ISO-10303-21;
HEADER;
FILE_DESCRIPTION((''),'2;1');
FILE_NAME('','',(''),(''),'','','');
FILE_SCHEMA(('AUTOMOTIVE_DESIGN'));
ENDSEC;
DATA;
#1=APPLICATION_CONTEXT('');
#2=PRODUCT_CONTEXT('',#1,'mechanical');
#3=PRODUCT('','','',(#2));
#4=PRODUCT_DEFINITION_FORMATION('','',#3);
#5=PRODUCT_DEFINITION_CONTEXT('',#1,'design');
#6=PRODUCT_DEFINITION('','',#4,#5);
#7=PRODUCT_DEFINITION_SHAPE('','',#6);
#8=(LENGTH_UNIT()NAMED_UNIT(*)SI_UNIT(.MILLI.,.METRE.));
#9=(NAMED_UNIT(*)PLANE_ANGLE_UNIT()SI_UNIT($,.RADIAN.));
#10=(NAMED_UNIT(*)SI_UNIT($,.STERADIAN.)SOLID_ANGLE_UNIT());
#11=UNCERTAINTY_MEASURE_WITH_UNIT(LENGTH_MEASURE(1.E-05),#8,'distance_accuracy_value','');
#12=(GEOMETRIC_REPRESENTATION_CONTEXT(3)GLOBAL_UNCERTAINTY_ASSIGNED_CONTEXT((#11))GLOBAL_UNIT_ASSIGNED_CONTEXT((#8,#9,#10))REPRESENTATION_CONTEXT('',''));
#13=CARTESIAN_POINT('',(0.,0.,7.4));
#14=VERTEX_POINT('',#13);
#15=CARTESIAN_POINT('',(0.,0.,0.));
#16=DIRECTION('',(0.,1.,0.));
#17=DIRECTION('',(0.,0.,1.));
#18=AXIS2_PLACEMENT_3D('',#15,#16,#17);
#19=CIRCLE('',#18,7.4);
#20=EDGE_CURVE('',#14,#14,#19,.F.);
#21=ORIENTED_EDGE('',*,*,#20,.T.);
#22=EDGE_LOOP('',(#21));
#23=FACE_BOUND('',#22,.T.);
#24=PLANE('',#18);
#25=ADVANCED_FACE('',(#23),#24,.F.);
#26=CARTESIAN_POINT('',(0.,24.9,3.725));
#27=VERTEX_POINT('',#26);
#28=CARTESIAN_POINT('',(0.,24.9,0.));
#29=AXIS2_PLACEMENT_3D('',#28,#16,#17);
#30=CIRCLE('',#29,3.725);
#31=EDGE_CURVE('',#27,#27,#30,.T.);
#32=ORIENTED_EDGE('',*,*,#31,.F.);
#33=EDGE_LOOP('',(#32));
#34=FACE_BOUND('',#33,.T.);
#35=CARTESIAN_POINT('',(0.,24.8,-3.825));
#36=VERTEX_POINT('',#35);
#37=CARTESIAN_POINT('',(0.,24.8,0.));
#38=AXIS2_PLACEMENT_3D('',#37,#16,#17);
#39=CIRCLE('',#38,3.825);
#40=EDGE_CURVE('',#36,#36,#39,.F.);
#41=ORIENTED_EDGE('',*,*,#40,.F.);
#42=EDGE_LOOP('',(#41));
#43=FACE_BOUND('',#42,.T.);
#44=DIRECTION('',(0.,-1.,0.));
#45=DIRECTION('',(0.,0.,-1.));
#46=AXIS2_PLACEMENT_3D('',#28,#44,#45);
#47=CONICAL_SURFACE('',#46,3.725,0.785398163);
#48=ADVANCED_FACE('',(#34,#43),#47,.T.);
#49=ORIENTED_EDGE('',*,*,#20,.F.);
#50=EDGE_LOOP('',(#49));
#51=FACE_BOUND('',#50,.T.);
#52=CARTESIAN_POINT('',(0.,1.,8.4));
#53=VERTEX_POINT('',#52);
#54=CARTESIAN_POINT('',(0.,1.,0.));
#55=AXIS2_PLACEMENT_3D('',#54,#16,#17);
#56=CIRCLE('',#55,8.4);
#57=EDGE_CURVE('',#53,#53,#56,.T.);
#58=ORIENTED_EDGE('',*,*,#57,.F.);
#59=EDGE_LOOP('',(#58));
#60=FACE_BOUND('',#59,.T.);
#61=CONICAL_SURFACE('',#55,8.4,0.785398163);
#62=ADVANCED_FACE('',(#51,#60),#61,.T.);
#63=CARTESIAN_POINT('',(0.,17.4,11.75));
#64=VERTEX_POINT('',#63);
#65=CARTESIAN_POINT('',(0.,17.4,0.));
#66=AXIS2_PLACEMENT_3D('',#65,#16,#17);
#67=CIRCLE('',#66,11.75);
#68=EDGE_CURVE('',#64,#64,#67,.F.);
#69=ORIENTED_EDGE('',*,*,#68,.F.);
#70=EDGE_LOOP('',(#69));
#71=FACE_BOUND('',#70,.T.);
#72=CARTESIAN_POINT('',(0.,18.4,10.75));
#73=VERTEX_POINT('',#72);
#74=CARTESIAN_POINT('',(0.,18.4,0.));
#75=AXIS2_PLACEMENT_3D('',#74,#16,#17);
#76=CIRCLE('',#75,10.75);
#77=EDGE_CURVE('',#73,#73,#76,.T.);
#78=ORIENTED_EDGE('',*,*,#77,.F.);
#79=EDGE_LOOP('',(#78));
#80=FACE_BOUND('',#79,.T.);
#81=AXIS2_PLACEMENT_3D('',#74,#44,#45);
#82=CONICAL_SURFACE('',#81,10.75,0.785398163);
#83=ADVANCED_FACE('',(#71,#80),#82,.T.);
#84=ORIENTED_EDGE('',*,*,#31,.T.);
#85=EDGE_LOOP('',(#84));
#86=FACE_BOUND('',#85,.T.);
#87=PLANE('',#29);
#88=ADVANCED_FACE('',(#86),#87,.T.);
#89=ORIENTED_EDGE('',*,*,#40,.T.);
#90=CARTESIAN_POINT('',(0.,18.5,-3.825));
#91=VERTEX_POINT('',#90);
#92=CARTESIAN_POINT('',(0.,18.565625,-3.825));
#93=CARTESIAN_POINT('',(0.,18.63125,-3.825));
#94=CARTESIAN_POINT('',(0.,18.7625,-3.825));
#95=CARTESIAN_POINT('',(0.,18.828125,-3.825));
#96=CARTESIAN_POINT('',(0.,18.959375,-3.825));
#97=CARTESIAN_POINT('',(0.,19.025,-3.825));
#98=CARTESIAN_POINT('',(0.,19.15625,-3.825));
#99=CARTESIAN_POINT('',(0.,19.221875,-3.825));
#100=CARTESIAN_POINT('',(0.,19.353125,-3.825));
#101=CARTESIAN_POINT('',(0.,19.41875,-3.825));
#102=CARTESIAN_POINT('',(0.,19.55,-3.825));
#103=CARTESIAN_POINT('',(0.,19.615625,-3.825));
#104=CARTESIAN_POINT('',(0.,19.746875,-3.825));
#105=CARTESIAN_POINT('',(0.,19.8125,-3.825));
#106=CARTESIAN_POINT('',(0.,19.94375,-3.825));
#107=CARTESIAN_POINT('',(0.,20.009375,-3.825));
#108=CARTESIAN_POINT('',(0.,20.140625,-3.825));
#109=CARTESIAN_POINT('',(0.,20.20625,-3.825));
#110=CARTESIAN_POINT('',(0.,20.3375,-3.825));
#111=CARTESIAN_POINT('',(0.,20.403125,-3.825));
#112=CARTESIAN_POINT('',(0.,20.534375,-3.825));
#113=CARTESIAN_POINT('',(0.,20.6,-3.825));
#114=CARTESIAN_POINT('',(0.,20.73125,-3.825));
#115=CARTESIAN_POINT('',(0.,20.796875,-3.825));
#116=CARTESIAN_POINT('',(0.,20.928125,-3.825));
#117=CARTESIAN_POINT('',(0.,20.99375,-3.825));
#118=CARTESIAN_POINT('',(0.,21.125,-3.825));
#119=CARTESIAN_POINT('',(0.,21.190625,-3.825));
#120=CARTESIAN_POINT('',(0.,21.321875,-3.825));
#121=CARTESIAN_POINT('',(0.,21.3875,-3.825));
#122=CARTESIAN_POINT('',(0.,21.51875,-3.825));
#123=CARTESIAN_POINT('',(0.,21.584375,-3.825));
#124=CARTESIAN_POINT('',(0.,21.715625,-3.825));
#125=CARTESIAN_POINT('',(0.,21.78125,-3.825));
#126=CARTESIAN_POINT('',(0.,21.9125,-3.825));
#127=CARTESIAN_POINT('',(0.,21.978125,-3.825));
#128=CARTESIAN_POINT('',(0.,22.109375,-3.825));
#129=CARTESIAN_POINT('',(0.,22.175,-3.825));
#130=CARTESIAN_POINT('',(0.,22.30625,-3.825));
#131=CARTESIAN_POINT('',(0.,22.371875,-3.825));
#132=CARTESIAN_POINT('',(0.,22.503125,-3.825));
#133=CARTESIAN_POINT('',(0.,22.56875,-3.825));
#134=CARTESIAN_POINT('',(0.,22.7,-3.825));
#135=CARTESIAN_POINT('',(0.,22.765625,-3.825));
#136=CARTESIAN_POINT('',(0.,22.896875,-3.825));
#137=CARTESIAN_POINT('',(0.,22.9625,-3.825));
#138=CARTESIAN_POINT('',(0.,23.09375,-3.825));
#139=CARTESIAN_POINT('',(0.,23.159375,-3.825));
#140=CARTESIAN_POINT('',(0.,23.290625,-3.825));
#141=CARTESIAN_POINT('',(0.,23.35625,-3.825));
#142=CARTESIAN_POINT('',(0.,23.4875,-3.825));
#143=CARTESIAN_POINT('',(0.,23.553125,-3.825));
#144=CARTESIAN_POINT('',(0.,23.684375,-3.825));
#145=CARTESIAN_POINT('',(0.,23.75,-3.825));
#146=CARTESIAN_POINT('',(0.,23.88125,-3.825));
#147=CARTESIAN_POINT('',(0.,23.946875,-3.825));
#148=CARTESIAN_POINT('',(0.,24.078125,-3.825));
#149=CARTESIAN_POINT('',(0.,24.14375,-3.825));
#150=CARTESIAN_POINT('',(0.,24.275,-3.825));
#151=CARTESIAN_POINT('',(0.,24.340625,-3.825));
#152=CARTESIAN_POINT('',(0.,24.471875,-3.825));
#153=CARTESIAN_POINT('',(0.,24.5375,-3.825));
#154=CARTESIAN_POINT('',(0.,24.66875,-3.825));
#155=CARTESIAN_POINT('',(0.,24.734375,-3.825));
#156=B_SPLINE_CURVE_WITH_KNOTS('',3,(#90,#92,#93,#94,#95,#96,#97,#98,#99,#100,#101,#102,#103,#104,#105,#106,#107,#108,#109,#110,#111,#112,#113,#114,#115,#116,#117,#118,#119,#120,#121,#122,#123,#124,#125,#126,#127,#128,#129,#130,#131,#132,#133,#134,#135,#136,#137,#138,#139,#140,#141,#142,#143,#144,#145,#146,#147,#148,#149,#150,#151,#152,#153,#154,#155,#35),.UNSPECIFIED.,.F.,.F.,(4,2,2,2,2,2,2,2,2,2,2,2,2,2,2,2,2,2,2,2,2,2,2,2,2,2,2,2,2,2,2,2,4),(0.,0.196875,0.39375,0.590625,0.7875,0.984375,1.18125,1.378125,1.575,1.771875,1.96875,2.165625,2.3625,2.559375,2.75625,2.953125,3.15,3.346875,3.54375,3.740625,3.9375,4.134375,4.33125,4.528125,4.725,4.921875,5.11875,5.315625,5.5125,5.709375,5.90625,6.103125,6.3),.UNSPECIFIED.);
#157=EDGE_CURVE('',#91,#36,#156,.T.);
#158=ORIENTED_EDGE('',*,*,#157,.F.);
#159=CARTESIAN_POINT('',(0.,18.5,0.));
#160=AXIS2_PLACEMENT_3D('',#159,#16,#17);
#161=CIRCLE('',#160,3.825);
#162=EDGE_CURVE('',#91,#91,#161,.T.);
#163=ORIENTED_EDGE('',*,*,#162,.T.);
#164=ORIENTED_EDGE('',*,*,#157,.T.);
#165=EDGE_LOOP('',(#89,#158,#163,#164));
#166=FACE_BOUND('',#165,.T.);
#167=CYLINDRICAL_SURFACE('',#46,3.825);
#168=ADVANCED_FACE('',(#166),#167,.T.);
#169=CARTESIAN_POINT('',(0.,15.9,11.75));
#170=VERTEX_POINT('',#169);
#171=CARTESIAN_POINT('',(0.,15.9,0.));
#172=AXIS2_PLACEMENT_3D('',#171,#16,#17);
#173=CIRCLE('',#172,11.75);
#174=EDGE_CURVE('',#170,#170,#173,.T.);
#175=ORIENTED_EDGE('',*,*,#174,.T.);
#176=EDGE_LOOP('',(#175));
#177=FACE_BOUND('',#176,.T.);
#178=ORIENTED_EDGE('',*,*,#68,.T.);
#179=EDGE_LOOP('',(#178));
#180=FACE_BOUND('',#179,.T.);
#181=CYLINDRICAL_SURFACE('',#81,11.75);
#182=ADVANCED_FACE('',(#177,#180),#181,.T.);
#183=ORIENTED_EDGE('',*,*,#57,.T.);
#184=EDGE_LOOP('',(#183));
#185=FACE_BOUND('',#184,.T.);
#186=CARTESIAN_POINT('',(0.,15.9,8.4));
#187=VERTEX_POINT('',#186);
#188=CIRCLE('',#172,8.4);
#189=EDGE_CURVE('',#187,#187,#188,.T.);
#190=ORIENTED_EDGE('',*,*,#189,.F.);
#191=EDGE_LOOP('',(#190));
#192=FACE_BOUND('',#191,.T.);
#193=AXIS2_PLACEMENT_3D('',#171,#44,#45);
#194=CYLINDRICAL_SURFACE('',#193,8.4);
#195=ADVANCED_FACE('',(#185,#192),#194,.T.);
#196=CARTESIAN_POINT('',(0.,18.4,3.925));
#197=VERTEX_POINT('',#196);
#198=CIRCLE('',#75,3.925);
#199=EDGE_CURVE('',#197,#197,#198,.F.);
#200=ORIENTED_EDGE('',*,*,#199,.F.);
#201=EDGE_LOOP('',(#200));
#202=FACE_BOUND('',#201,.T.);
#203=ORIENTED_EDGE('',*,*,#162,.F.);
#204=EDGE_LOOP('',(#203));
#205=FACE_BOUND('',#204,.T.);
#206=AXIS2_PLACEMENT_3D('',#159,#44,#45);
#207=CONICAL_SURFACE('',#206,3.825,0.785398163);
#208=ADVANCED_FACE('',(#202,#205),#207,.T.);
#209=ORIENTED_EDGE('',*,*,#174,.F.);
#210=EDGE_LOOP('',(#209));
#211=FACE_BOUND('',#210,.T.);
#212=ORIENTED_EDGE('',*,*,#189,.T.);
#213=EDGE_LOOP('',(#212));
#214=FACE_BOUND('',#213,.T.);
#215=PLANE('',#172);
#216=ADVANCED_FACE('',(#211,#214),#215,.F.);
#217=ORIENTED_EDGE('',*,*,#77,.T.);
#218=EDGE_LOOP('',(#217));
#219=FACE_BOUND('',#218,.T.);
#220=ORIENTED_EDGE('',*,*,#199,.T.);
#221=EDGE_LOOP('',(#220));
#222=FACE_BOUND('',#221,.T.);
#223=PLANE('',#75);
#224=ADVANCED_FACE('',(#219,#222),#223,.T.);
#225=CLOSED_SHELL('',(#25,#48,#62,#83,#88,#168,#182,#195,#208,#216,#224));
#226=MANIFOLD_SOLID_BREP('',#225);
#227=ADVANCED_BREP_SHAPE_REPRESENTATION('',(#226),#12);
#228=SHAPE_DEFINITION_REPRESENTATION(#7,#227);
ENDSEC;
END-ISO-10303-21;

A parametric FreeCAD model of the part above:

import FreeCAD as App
import Part
import Sketcher

V = App.Vector


def edges_at(feature, points):
    """Names of the edges that pass closest to the given points."""
    edges = feature.Shape.Edges
    near = lambda p: min(range(len(edges)), key=lambda i: edges[i].distToShape(Part.Vertex(*p))[0])
    return sorted({f"Edge{near(p) + 1}" for p in points})

doc = App.newDocument("Part")
params = doc.addObject("Spreadsheet::Sheet", "Params")
for row, (alias, value) in enumerate([
    ("sketch1_diameter", "16.8 mm"),
    ("pad1_length", "15.9 mm"),
    ("sketch2_diameter", "23.5 mm"),
    ("pad2_length", "2.5 mm"),
    ("sketch3_diameter", "7.65 mm"),
    ("pad3_length", "6.5 mm"),
    ("chamfer_size", "1 mm"),
    ("chamfer2_size", "0.1 mm"),
], start=1):
    params.set(f"A{row}", alias)
    params.set(f"B{row}", "=" + value)
    params.setAlias(f"B{row}", alias)

body = doc.addObject("PartDesign::Body", "Body")

# Sketch on XZ plane
sketch1 = body.newObject("Sketcher::SketchObject", "Sketch")
sketch1.AttachmentSupport = (doc.getObject("XZ_Plane"), [""])
sketch1.MapMode = "FlatFace"
sketch1.addGeometry(Part.Circle(V(0, 0, 0), V(0, 0, 1), 8.4), False)
sketch1.addConstraint(Sketcher.Constraint("Coincident", 0, 3, -1, 1))
sketch1.addConstraint(Sketcher.Constraint("Diameter", 0, 16.8))
sketch1.setExpression("Constraints[1]", "Params.sketch1_diameter")
pad1 = body.newObject("PartDesign::Pad", "Pad")
pad1.Profile = sketch1
pad1.setExpression("Length", "Params.pad1_length")
pad1.Reversed = True

# Sketch on XZ plane
sketch2 = body.newObject("Sketcher::SketchObject", "Sketch001")
sketch2.AttachmentSupport = (doc.getObject("XZ_Plane"), [""])
sketch2.MapMode = "FlatFace"
sketch2.AttachmentOffset = App.Placement(V(0, 0, -15.9), App.Rotation())
sketch2.addGeometry(Part.Circle(V(0, 0, 0), V(0, 0, 1), 11.75), False)
sketch2.addConstraint(Sketcher.Constraint("Coincident", 0, 3, -1, 1))
sketch2.addConstraint(Sketcher.Constraint("Diameter", 0, 23.5))
sketch2.setExpression("Constraints[1]", "Params.sketch2_diameter")
pad2 = body.newObject("PartDesign::Pad", "Pad001")
pad2.Profile = sketch2
pad2.setExpression("Length", "Params.pad2_length")
pad2.Reversed = True

# Sketch on XZ plane
sketch3 = body.newObject("Sketcher::SketchObject", "Sketch002")
sketch3.AttachmentSupport = (doc.getObject("XZ_Plane"), [""])
sketch3.MapMode = "FlatFace"
sketch3.AttachmentOffset = App.Placement(V(0, 0, -18.4), App.Rotation())
sketch3.addGeometry(Part.Circle(V(0, 0, 0), V(0, 0, 1), 3.825), False)
sketch3.addConstraint(Sketcher.Constraint("Coincident", 0, 3, -1, 1))
sketch3.addConstraint(Sketcher.Constraint("Diameter", 0, 7.65))
sketch3.setExpression("Constraints[1]", "Params.sketch3_diameter")
pad3 = body.newObject("PartDesign::Pad", "Pad002")
pad3.Profile = sketch3
pad3.setExpression("Length", "Params.pad3_length")
pad3.Reversed = True
doc.recompute()

chamfer = body.newObject("PartDesign::Chamfer", "Chamfer")
chamfer.Base = (pad3, edges_at(pad3, [(0, 0, -8.4), (0, 18.4, -11.75)]))
chamfer.setExpression("Size", "Params.chamfer_size")
doc.recompute()

chamfer2 = body.newObject("PartDesign::Chamfer", "Chamfer001")
chamfer2.Base = (chamfer, edges_at(chamfer, [(0, 24.9, 3.825), (0, 18.4, 3.825)]))
chamfer2.setExpression("Size", "Params.chamfer2_size")

doc.recompute()
